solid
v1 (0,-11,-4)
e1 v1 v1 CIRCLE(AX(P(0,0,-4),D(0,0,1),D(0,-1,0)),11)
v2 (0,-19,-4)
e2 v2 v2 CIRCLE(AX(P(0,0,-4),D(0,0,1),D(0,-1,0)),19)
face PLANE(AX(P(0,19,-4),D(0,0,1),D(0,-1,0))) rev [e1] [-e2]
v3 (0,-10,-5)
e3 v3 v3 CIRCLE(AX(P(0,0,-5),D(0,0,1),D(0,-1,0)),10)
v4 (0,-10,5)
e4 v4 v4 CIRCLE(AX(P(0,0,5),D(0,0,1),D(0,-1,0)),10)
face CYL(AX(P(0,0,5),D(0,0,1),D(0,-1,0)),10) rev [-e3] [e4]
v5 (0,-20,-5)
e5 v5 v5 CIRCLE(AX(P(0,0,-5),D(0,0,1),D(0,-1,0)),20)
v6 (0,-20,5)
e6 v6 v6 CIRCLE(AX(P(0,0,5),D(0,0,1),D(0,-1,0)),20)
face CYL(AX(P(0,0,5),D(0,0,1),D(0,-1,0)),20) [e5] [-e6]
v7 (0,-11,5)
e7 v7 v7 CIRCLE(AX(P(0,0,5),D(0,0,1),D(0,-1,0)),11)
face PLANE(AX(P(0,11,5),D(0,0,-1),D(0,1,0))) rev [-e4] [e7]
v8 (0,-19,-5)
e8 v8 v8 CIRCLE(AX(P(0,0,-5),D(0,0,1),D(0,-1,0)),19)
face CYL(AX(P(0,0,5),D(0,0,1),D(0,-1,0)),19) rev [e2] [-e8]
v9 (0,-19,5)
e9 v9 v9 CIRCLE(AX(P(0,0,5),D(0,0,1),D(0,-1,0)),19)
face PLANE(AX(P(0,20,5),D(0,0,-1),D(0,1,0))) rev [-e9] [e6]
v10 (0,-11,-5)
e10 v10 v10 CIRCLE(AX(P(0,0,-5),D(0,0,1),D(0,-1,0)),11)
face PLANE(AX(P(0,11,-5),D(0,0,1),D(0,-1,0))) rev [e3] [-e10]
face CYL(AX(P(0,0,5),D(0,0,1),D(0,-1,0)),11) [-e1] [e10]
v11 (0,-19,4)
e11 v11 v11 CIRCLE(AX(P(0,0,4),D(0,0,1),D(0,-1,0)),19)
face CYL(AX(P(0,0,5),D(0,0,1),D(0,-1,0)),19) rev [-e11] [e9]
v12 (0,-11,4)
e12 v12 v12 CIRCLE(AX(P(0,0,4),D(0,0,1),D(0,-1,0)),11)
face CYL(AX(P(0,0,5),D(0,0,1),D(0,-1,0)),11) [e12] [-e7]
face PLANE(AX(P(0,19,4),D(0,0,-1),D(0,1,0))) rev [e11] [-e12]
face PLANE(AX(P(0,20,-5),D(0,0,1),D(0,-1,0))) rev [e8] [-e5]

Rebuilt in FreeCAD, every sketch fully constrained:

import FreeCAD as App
import Part
import Sketcher
from FreeCAD import Vector

doc = App.newDocument("Part")
body = doc.addObject("PartDesign::Body", "Body")

sketch1 = doc.addObject("Sketcher::SketchObject", "Sketch")
body.addObject(sketch1)
sketch1.AttachmentSupport = (doc.YZ_Plane, [""])
sketch1.MapMode = "FlatFace"
sketch1.addGeometry([
    Part.LineSegment(Vector(20, -5, 0), Vector(20, 5, 0)),
    Part.LineSegment(Vector(20, 5, 0), Vector(19, 5, 0)),
    Part.LineSegment(Vector(19, 5, 0), Vector(19, 4, 0)),
    Part.LineSegment(Vector(19, 4, 0), Vector(11, 4, 0)),
    Part.LineSegment(Vector(11, 4, 0), Vector(11, 5, 0)),
    Part.LineSegment(Vector(11, 5, 0), Vector(10, 5, 0)),
    Part.LineSegment(Vector(10, 5, 0), Vector(10, -5, 0)),
    Part.LineSegment(Vector(10, -5, 0), Vector(11, -5, 0)),
    Part.LineSegment(Vector(11, -5, 0), Vector(11, -4, 0)),
    Part.LineSegment(Vector(11, -4, 0), Vector(19, -4, 0)),
    Part.LineSegment(Vector(19, -4, 0), Vector(19, -5, 0)),
    Part.LineSegment(Vector(19, -5, 0), Vector(20, -5, 0)),
], False)
sketch1.addConstraint([
    Sketcher.Constraint("Coincident", 0, 2, 1, 1),
    Sketcher.Constraint("Coincident", 1, 2, 2, 1),
    Sketcher.Constraint("Coincident", 2, 2, 3, 1),
    Sketcher.Constraint("Coincident", 3, 2, 4, 1),
    Sketcher.Constraint("Coincident", 4, 2, 5, 1),
    Sketcher.Constraint("Coincident", 5, 2, 6, 1),
    Sketcher.Constraint("Coincident", 6, 2, 7, 1),
    Sketcher.Constraint("Coincident", 7, 2, 8, 1),
    Sketcher.Constraint("Coincident", 8, 2, 9, 1),
    Sketcher.Constraint("Coincident", 9, 2, 10, 1),
    Sketcher.Constraint("Coincident", 10, 2, 11, 1),
    Sketcher.Constraint("Coincident", 11, 2, 0, 1),
    Sketcher.Constraint("Vertical", 0),
    Sketcher.Constraint("Horizontal", 1),
    Sketcher.Constraint("Vertical", 2),
    Sketcher.Constraint("Horizontal", 3),
    Sketcher.Constraint("Vertical", 4),
    Sketcher.Constraint("Horizontal", 5),
    Sketcher.Constraint("Vertical", 6),
    Sketcher.Constraint("Horizontal", 7),
    Sketcher.Constraint("Vertical", 8),
    Sketcher.Constraint("Horizontal", 9),
    Sketcher.Constraint("Vertical", 10),
    Sketcher.Constraint("Horizontal", 11),
    Sketcher.Constraint("Symmetric", 4, 2, 7, 2, -1),
    Sketcher.Constraint("Symmetric", 2, 2, 9, 2, -1),
    Sketcher.Constraint("Horizontal", 1, 2, 4, 2),
    Sketcher.Constraint("Horizontal", 7, 2, 10, 2),
    Sketcher.Constraint("Equal", 1, 5),
    Sketcher.Constraint("Equal", 11, 2),
    Sketcher.Constraint("DistanceX", 1, 2, 1, 1, 1.0),
    Sketcher.Constraint("DistanceX", 3, 2, 3, 1, 8.0),
    Sketcher.Constraint("DistanceY", 0, 1, 0, 2, 10.0),
    Sketcher.Constraint("DistanceX", -1, 1, 0, 2, 20.0),
])
revolution = doc.addObject("PartDesign::Revolution", "Revolution")
body.addObject(revolution)
revolution.Profile = sketch1
revolution.ReferenceAxis = (sketch1, ["V_Axis"])
revolution.Angle = 360

doc.recompute()
